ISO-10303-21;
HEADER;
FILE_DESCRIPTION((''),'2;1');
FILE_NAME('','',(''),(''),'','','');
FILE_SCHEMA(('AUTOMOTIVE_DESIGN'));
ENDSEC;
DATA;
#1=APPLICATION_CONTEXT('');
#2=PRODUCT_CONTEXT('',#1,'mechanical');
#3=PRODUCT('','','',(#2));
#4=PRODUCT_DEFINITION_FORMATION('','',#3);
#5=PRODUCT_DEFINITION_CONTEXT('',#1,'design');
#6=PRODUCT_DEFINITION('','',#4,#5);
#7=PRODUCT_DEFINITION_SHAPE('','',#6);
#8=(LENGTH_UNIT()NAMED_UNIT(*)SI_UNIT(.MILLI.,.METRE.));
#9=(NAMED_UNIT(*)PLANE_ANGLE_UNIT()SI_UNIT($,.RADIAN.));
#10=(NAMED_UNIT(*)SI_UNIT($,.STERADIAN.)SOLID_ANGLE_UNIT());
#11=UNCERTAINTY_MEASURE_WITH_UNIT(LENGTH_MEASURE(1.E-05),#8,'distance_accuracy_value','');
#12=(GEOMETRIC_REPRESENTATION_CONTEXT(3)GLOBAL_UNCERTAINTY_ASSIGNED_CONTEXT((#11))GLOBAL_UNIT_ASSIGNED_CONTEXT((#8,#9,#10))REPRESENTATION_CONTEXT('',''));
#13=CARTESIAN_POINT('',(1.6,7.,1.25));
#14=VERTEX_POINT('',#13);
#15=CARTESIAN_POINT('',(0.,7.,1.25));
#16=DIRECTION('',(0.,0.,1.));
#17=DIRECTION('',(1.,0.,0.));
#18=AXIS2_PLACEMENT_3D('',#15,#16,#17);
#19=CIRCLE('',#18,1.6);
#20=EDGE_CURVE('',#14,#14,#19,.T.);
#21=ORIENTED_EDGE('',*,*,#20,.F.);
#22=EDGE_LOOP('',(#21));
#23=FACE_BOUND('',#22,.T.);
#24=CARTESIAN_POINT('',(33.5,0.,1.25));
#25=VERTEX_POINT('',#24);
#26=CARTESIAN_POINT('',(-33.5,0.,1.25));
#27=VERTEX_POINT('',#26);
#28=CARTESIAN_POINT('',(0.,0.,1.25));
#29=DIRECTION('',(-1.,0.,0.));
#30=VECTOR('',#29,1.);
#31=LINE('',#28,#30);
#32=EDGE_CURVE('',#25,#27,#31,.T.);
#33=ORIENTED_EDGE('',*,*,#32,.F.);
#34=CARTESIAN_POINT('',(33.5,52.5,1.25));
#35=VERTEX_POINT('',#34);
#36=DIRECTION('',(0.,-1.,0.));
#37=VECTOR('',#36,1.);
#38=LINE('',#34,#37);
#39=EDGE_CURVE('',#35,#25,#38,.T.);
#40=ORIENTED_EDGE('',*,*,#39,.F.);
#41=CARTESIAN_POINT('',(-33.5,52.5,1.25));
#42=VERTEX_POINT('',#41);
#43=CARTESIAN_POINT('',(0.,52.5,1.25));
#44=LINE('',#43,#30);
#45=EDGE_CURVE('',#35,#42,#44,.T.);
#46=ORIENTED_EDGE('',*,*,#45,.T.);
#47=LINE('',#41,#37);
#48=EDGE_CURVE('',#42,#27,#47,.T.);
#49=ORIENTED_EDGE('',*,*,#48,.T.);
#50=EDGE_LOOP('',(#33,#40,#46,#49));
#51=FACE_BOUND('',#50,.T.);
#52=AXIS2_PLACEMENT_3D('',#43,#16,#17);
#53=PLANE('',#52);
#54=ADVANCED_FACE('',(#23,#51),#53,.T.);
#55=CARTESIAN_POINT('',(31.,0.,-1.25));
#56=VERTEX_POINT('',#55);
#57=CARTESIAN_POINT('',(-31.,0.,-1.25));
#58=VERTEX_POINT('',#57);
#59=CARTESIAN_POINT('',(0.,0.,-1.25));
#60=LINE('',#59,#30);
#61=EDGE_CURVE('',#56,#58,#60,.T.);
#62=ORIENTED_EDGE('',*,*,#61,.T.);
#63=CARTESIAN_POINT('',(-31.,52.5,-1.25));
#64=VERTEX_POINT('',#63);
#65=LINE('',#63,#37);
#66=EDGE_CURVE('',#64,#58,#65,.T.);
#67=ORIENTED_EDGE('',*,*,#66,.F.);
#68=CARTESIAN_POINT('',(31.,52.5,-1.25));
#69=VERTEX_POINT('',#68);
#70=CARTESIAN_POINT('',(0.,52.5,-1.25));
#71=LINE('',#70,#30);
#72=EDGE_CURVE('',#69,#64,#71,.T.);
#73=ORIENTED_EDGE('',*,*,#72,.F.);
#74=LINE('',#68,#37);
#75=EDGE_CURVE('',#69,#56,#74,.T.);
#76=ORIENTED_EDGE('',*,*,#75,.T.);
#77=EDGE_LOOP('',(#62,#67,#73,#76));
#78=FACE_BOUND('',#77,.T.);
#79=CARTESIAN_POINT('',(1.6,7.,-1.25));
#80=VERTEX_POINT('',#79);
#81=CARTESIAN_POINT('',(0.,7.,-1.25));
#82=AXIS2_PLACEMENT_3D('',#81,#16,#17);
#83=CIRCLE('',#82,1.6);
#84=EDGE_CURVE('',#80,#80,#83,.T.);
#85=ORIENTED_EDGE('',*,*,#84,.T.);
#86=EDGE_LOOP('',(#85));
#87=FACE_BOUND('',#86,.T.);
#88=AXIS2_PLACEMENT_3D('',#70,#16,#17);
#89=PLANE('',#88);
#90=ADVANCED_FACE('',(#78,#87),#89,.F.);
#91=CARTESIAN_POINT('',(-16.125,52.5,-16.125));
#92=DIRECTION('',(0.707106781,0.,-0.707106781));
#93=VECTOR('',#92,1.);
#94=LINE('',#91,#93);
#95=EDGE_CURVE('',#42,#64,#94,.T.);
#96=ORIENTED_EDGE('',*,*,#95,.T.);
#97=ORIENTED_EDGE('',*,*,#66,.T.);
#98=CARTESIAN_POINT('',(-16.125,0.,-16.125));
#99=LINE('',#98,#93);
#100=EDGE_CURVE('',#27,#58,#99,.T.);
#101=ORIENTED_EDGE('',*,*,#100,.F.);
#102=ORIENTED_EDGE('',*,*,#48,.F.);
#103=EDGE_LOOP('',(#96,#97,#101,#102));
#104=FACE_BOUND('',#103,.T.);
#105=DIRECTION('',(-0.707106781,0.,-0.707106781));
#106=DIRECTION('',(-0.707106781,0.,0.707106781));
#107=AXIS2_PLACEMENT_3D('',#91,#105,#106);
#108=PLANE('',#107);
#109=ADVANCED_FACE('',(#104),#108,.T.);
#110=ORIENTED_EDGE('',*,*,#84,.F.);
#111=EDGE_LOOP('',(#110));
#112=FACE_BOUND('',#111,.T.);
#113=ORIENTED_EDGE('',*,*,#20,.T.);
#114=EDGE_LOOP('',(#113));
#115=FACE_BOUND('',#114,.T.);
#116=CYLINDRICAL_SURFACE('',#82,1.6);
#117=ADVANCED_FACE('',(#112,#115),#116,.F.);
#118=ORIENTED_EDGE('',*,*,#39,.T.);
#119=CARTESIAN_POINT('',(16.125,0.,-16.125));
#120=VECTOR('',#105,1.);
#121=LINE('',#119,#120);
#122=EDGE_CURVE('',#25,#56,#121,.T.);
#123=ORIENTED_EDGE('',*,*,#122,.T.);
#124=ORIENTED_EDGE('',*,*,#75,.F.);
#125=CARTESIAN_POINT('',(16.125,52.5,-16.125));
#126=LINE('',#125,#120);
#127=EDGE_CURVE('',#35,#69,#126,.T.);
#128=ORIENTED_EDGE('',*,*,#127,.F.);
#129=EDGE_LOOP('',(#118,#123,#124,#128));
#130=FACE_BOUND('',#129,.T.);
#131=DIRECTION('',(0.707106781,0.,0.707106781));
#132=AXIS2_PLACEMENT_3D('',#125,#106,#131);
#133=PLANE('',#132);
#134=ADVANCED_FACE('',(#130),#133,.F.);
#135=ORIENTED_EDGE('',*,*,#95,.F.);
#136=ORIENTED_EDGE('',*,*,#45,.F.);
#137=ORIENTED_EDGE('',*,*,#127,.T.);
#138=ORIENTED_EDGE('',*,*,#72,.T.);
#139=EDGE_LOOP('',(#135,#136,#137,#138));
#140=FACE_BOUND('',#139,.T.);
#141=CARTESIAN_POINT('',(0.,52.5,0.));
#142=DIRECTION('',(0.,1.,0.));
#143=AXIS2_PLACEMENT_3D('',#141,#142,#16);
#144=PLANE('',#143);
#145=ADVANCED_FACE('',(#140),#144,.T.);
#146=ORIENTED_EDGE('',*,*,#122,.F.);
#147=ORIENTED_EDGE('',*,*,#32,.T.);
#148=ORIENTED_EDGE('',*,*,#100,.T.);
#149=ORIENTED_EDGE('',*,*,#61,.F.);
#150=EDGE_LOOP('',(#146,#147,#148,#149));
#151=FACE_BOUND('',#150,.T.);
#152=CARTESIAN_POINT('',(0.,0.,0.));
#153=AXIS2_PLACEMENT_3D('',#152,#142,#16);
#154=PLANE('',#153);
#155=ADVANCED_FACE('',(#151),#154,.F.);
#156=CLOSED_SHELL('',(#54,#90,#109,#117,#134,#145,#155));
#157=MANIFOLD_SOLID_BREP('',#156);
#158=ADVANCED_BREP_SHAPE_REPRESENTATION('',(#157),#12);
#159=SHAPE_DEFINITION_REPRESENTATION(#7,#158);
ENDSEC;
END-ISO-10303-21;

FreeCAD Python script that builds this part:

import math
import FreeCAD as App
import Part
import Sketcher
from FreeCAD import Vector
Q = App.Units.Quantity


def add_polygon(sketch, points):
    """Adds a closed chain of lines whose ends are joined by coincident constraints."""
    first, n = sketch.GeometryCount, len(points)
    for a, b in zip(points, points[1:] + points[:1]):
        sketch.addGeometry(Part.LineSegment(App.Vector(*a, 0), App.Vector(*b, 0)), False)
    for i in range(n):
        sketch.addConstraint(Sketcher.Constraint("Coincident", first + i, 2, first + (i + 1) % n, 1))

doc = App.newDocument("Part")
body = doc.addObject("PartDesign::Body", "Body")

# Sketch on XZ plane
sketch1 = body.newObject("Sketcher::SketchObject", "Sketch")
sketch1.AttachmentSupport = (doc.getObject("XZ_Plane"), [""])
sketch1.MapMode = "FlatFace"
add_polygon(sketch1, [(-31, -1.2), (-33.5, 1.2), (33.5, 1.2), (31, -1.2)])  # lines 0-3
sketch1.addConstraint(Sketcher.Constraint("Horizontal", 1))
sketch1.addConstraint(Sketcher.Constraint("Horizontal", 3))
sketch1.addConstraint(Sketcher.Constraint("Perpendicular", 0, 2))
sketch1.addConstraint(Sketcher.Constraint("Equal", 0, 2))
sketch1.addConstraint(Sketcher.Constraint("DistanceX", 1, 1, 1, 2, Q("67 mm")))
sketch1.addConstraint(Sketcher.Constraint("DistanceX", 3, 2, 3, 1, Q("62 mm")))
sketch1.addConstraint(Sketcher.Constraint("DistanceX", -1, 1, 2, 2, Q("31 mm")))
sketch1.addConstraint(Sketcher.Constraint("DistanceY", -1, 1, 0, 2, Q("1.25 mm")))
pad1 = body.newObject("PartDesign::Pad", "Pad")
pad1.Profile = sketch1
pad1.Length = 52.5
pad1.Reversed = True

# Sketch on XY plane
sketch2 = body.newObject("Sketcher::SketchObject", "Sketch001")
sketch2.AttachmentSupport = (doc.getObject("XY_Plane"), [""])
sketch2.MapMode = "FlatFace"
sketch2.AttachmentOffset = App.Placement(Vector(0, 0, 1.25), App.Rotation())
sketch2.addGeometry(Part.ArcOfCircle(Part.Circle(Vector(0, 7, 0), Vector(0, 0, 1), 1.6), math.radians(90), math.radians(270)), False)
sketch2.addGeometry(Part.ArcOfCircle(Part.Circle(Vector(0, 7, 0), Vector(0, 0, 1), 1.6), math.radians(-90), math.radians(0)), False)
sketch2.addGeometry(Part.ArcOfCircle(Part.Circle(Vector(0, 7, 0), Vector(0, 0, 1), 1.6), math.radians(0), math.radians(90)), False)
sketch2.addConstraint(Sketcher.Constraint("Tangent", 0, 2, 1, 1))
sketch2.addConstraint(Sketcher.Constraint("Tangent", 1, 2, 2, 1))
sketch2.addConstraint(Sketcher.Constraint("Tangent", 2, 2, 0, 1))
sketch2.addConstraint(Sketcher.Constraint("PointOnObject", 0, 3, -2))
sketch2.addConstraint(Sketcher.Constraint("PointOnObject", 0, 2, -2))
sketch2.addConstraint(Sketcher.Constraint("PointOnObject", 2, 2, -2))
sketch2.addConstraint(Sketcher.Constraint("Horizontal", 2, 3, 1, 2))
sketch2.addConstraint(Sketcher.Constraint("Radius", 0, Q("1.6 mm")))
sketch2.addConstraint(Sketcher.Constraint("DistanceY", -1, 1, 0, 3, Q("7 mm")))
pocket1 = body.newObject("PartDesign::Pocket", "Pocket")
pocket1.Profile = sketch2
pocket1.Type = "ThroughAll"

doc.recompute()
